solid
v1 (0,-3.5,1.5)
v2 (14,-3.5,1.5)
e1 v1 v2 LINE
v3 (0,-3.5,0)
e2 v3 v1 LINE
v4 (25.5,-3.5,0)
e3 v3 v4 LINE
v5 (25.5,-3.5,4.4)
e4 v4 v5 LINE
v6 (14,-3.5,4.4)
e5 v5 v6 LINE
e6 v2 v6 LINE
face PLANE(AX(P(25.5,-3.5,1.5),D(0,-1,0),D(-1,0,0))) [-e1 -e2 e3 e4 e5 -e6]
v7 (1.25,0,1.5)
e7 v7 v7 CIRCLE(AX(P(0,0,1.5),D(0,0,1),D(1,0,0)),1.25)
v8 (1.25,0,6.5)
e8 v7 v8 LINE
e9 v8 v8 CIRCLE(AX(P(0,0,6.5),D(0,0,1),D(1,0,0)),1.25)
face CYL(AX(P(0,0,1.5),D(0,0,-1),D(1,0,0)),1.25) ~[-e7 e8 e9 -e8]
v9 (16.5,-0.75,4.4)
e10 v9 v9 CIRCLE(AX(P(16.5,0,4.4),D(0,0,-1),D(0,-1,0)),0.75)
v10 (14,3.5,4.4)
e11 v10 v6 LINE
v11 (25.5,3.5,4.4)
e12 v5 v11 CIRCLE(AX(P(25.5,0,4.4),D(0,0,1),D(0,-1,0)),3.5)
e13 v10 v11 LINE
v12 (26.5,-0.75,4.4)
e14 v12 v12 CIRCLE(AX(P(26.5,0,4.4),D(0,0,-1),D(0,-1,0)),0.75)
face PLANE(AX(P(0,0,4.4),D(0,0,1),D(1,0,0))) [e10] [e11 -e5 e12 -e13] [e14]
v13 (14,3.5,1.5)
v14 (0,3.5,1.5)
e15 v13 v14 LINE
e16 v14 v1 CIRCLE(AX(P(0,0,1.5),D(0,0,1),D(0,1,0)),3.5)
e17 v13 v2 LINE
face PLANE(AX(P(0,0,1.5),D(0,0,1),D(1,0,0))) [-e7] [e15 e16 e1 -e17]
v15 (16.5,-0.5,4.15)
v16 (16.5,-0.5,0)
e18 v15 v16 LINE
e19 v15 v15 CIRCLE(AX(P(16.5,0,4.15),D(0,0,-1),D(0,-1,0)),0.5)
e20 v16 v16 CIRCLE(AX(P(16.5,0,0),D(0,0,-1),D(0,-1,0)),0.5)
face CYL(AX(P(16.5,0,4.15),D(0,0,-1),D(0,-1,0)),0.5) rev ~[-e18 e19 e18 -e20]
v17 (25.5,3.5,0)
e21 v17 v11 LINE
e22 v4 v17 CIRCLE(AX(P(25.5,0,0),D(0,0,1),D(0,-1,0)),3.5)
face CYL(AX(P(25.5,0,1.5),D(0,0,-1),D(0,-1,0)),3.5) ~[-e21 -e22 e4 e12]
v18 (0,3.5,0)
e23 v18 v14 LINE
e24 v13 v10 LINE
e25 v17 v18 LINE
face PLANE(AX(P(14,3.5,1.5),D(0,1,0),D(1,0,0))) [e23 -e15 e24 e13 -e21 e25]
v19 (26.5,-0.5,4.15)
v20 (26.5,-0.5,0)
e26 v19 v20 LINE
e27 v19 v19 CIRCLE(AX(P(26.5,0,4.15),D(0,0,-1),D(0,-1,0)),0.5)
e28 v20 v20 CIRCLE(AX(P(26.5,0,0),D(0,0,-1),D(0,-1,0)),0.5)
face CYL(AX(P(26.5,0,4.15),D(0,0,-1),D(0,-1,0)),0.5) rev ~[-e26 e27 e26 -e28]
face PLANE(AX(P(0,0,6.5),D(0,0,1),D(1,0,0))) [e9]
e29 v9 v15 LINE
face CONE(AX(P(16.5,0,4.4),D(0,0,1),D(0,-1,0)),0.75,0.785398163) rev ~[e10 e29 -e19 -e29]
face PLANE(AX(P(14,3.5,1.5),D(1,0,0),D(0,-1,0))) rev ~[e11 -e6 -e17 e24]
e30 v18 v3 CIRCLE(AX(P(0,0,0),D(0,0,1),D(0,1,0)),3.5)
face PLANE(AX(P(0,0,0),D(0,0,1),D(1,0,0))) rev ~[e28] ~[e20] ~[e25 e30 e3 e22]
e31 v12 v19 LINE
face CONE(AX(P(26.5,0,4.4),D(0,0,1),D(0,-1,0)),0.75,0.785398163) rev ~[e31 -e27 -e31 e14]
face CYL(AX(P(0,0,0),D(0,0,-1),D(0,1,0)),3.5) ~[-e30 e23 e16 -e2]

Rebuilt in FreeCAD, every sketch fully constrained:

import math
import FreeCAD as App
import Part
import Sketcher
Q = App.Units.Quantity

doc = App.newDocument("Part")
body = doc.addObject("PartDesign::Body", "Body")

# Sketch on XY plane
sketch1 = doc.addObject("Sketcher::SketchObject", "Sketch")
body.addObject(sketch1)
sketch1.AttachmentSupport = (doc.XY_Plane, [""])
sketch1.MapMode = "FlatFace"
sketch1.addGeometry([
    Part.ArcOfCircle(Part.Circle(App.Vector(0, 0, 0), App.Vector(0, 0, 1), 3.5), math.radians(90), math.radians(270)),
    Part.LineSegment(App.Vector(0, -3.5, 0), App.Vector(25.5, -3.5, 0)),
    Part.ArcOfCircle(Part.Circle(App.Vector(25.5, 0, 0), App.Vector(0, 0, 1), 3.5), math.radians(-90), math.radians(90)),
    Part.LineSegment(App.Vector(25.5, 3.5, 0), App.Vector(0, 3.5, 0)),
], False)
sketch1.addConstraint([
    Sketcher.Constraint("Tangent", 0, 2, 1, 1),
    Sketcher.Constraint("Tangent", 1, 2, 2, 1),
    Sketcher.Constraint("Tangent", 2, 2, 3, 1),
    Sketcher.Constraint("Tangent", 3, 2, 0, 1),
    Sketcher.Constraint("Horizontal", 1),
    Sketcher.Constraint("Horizontal", 3),
    Sketcher.Constraint("Coincident", 0, 3, -1, 1),
    Sketcher.Constraint("Radius", 0, Q("3.5 mm")),
    Sketcher.Constraint("DistanceX", 1, 1, 1, 2, Q("25.5 mm")),
])
pad1 = doc.addObject("PartDesign::Pad", "Pad")
body.addObject(pad1)
pad1.Profile = sketch1
pad1.Length = 1.5

# Sketch on XY plane
sketch2 = doc.addObject("Sketcher::SketchObject", "Sketch001")
body.addObject(sketch2)
sketch2.AttachmentSupport = (doc.XY_Plane, [""])
sketch2.MapMode = "FlatFace"
sketch2.AttachmentOffset = App.Placement(App.Vector(0, 0, 1.5), App.Rotation())
sketch2.addGeometry(Part.Circle(App.Vector(0, 0, 0), App.Vector(0, 0, 1), 1.2), False)
sketch2.addConstraint([
    Sketcher.Constraint("Coincident", 0, 3, -1, 1),
    Sketcher.Constraint("Diameter", 0, Q("2.5 mm")),
])
pad2 = doc.addObject("PartDesign::Pad", "Pad001")
body.addObject(pad2)
pad2.Profile = sketch2
pad2.Length = 5

# Sketch on XY plane
sketch3 = doc.addObject("Sketcher::SketchObject", "Sketch002")
body.addObject(sketch3)
sketch3.AttachmentSupport = (doc.XY_Plane, [""])
sketch3.MapMode = "FlatFace"
sketch3.AttachmentOffset = App.Placement(App.Vector(0, 0, 1.5), App.Rotation())
sketch3.addGeometry([
    Part.LineSegment(App.Vector(14, -3.5, 0), App.Vector(25.5, -3.5, 0)),
    Part.ArcOfCircle(Part.Circle(App.Vector(25.5, 0, 0), App.Vector(0, 0, 1), 3.5), math.radians(-90), math.radians(90)),
    Part.LineSegment(App.Vector(25.5, 3.5, 0), App.Vector(14, 3.5, 0)),
    Part.LineSegment(App.Vector(14, 3.5, 0), App.Vector(14, -3.5, 0)),
], False)
sketch3.addConstraint([
    Sketcher.Constraint("Tangent", 0, 2, 1, 1),
    Sketcher.Constraint("Tangent", 1, 2, 2, 1),
    Sketcher.Constraint("Coincident", 2, 2, 3, 1),
    Sketcher.Constraint("Coincident", 3, 2, 0, 1),
    Sketcher.Constraint("Horizontal", 0),
    Sketcher.Constraint("Horizontal", 2),
    Sketcher.Constraint("Vertical", 3),
    Sketcher.Constraint("PointOnObject", 1, 3, -1),
    Sketcher.Constraint("DistanceX", 0, 1, 0, 2, Q("11.5 mm")),
    Sketcher.Constraint("Radius", 1, Q("3.5 mm")),
    Sketcher.Constraint("DistanceX", -1, 1, 2, 2, Q("14 mm")),
])
pad3 = doc.addObject("PartDesign::Pad", "Pad002")
body.addObject(pad3)
pad3.Profile = sketch3
pad3.Length = 2.9

# Sketch on XY plane
sketch4 = doc.addObject("Sketcher::SketchObject", "Sketch003")
body.addObject(sketch4)
sketch4.AttachmentSupport = (doc.XY_Plane, [""])
sketch4.MapMode = "FlatFace"
sketch4.AttachmentOffset = App.Placement(App.Vector(0, 0, 4.4), App.Rotation())
sketch4.addGeometry([
    Part.Circle(App.Vector(16.5, 0, 0), App.Vector(0, 0, 1), 0.5),
    Part.Circle(App.Vector(26.5, 0, 0), App.Vector(0, 0, 1), 0.5),
], False)
sketch4.addConstraint([
    Sketcher.Constraint("Equal", 0, 1),
    Sketcher.Constraint("PointOnObject", 0, 3, -1),
    Sketcher.Constraint("PointOnObject", 1, 3, -1),
    Sketcher.Constraint("Diameter", 0, Q("1 mm")),
    Sketcher.Constraint("DistanceX", 0, 3, 1, 3, Q("10 mm")),
    Sketcher.Constraint("DistanceX", -1, 1, 0, 3, Q("16.5 mm")),
])
doc.recompute()
hole = doc.addObject("PartDesign::Hole", "Hole")
body.addObject(hole)
hole.Profile = sketch4
hole.ThreadType = "None"
hole.Diameter = 1
hole.DepthType = "ThroughAll"
hole.HoleCutType = "Countersink"
hole.HoleCutDiameter = 1.5
hole.HoleCutCountersinkAngle = 90

doc.recompute()
